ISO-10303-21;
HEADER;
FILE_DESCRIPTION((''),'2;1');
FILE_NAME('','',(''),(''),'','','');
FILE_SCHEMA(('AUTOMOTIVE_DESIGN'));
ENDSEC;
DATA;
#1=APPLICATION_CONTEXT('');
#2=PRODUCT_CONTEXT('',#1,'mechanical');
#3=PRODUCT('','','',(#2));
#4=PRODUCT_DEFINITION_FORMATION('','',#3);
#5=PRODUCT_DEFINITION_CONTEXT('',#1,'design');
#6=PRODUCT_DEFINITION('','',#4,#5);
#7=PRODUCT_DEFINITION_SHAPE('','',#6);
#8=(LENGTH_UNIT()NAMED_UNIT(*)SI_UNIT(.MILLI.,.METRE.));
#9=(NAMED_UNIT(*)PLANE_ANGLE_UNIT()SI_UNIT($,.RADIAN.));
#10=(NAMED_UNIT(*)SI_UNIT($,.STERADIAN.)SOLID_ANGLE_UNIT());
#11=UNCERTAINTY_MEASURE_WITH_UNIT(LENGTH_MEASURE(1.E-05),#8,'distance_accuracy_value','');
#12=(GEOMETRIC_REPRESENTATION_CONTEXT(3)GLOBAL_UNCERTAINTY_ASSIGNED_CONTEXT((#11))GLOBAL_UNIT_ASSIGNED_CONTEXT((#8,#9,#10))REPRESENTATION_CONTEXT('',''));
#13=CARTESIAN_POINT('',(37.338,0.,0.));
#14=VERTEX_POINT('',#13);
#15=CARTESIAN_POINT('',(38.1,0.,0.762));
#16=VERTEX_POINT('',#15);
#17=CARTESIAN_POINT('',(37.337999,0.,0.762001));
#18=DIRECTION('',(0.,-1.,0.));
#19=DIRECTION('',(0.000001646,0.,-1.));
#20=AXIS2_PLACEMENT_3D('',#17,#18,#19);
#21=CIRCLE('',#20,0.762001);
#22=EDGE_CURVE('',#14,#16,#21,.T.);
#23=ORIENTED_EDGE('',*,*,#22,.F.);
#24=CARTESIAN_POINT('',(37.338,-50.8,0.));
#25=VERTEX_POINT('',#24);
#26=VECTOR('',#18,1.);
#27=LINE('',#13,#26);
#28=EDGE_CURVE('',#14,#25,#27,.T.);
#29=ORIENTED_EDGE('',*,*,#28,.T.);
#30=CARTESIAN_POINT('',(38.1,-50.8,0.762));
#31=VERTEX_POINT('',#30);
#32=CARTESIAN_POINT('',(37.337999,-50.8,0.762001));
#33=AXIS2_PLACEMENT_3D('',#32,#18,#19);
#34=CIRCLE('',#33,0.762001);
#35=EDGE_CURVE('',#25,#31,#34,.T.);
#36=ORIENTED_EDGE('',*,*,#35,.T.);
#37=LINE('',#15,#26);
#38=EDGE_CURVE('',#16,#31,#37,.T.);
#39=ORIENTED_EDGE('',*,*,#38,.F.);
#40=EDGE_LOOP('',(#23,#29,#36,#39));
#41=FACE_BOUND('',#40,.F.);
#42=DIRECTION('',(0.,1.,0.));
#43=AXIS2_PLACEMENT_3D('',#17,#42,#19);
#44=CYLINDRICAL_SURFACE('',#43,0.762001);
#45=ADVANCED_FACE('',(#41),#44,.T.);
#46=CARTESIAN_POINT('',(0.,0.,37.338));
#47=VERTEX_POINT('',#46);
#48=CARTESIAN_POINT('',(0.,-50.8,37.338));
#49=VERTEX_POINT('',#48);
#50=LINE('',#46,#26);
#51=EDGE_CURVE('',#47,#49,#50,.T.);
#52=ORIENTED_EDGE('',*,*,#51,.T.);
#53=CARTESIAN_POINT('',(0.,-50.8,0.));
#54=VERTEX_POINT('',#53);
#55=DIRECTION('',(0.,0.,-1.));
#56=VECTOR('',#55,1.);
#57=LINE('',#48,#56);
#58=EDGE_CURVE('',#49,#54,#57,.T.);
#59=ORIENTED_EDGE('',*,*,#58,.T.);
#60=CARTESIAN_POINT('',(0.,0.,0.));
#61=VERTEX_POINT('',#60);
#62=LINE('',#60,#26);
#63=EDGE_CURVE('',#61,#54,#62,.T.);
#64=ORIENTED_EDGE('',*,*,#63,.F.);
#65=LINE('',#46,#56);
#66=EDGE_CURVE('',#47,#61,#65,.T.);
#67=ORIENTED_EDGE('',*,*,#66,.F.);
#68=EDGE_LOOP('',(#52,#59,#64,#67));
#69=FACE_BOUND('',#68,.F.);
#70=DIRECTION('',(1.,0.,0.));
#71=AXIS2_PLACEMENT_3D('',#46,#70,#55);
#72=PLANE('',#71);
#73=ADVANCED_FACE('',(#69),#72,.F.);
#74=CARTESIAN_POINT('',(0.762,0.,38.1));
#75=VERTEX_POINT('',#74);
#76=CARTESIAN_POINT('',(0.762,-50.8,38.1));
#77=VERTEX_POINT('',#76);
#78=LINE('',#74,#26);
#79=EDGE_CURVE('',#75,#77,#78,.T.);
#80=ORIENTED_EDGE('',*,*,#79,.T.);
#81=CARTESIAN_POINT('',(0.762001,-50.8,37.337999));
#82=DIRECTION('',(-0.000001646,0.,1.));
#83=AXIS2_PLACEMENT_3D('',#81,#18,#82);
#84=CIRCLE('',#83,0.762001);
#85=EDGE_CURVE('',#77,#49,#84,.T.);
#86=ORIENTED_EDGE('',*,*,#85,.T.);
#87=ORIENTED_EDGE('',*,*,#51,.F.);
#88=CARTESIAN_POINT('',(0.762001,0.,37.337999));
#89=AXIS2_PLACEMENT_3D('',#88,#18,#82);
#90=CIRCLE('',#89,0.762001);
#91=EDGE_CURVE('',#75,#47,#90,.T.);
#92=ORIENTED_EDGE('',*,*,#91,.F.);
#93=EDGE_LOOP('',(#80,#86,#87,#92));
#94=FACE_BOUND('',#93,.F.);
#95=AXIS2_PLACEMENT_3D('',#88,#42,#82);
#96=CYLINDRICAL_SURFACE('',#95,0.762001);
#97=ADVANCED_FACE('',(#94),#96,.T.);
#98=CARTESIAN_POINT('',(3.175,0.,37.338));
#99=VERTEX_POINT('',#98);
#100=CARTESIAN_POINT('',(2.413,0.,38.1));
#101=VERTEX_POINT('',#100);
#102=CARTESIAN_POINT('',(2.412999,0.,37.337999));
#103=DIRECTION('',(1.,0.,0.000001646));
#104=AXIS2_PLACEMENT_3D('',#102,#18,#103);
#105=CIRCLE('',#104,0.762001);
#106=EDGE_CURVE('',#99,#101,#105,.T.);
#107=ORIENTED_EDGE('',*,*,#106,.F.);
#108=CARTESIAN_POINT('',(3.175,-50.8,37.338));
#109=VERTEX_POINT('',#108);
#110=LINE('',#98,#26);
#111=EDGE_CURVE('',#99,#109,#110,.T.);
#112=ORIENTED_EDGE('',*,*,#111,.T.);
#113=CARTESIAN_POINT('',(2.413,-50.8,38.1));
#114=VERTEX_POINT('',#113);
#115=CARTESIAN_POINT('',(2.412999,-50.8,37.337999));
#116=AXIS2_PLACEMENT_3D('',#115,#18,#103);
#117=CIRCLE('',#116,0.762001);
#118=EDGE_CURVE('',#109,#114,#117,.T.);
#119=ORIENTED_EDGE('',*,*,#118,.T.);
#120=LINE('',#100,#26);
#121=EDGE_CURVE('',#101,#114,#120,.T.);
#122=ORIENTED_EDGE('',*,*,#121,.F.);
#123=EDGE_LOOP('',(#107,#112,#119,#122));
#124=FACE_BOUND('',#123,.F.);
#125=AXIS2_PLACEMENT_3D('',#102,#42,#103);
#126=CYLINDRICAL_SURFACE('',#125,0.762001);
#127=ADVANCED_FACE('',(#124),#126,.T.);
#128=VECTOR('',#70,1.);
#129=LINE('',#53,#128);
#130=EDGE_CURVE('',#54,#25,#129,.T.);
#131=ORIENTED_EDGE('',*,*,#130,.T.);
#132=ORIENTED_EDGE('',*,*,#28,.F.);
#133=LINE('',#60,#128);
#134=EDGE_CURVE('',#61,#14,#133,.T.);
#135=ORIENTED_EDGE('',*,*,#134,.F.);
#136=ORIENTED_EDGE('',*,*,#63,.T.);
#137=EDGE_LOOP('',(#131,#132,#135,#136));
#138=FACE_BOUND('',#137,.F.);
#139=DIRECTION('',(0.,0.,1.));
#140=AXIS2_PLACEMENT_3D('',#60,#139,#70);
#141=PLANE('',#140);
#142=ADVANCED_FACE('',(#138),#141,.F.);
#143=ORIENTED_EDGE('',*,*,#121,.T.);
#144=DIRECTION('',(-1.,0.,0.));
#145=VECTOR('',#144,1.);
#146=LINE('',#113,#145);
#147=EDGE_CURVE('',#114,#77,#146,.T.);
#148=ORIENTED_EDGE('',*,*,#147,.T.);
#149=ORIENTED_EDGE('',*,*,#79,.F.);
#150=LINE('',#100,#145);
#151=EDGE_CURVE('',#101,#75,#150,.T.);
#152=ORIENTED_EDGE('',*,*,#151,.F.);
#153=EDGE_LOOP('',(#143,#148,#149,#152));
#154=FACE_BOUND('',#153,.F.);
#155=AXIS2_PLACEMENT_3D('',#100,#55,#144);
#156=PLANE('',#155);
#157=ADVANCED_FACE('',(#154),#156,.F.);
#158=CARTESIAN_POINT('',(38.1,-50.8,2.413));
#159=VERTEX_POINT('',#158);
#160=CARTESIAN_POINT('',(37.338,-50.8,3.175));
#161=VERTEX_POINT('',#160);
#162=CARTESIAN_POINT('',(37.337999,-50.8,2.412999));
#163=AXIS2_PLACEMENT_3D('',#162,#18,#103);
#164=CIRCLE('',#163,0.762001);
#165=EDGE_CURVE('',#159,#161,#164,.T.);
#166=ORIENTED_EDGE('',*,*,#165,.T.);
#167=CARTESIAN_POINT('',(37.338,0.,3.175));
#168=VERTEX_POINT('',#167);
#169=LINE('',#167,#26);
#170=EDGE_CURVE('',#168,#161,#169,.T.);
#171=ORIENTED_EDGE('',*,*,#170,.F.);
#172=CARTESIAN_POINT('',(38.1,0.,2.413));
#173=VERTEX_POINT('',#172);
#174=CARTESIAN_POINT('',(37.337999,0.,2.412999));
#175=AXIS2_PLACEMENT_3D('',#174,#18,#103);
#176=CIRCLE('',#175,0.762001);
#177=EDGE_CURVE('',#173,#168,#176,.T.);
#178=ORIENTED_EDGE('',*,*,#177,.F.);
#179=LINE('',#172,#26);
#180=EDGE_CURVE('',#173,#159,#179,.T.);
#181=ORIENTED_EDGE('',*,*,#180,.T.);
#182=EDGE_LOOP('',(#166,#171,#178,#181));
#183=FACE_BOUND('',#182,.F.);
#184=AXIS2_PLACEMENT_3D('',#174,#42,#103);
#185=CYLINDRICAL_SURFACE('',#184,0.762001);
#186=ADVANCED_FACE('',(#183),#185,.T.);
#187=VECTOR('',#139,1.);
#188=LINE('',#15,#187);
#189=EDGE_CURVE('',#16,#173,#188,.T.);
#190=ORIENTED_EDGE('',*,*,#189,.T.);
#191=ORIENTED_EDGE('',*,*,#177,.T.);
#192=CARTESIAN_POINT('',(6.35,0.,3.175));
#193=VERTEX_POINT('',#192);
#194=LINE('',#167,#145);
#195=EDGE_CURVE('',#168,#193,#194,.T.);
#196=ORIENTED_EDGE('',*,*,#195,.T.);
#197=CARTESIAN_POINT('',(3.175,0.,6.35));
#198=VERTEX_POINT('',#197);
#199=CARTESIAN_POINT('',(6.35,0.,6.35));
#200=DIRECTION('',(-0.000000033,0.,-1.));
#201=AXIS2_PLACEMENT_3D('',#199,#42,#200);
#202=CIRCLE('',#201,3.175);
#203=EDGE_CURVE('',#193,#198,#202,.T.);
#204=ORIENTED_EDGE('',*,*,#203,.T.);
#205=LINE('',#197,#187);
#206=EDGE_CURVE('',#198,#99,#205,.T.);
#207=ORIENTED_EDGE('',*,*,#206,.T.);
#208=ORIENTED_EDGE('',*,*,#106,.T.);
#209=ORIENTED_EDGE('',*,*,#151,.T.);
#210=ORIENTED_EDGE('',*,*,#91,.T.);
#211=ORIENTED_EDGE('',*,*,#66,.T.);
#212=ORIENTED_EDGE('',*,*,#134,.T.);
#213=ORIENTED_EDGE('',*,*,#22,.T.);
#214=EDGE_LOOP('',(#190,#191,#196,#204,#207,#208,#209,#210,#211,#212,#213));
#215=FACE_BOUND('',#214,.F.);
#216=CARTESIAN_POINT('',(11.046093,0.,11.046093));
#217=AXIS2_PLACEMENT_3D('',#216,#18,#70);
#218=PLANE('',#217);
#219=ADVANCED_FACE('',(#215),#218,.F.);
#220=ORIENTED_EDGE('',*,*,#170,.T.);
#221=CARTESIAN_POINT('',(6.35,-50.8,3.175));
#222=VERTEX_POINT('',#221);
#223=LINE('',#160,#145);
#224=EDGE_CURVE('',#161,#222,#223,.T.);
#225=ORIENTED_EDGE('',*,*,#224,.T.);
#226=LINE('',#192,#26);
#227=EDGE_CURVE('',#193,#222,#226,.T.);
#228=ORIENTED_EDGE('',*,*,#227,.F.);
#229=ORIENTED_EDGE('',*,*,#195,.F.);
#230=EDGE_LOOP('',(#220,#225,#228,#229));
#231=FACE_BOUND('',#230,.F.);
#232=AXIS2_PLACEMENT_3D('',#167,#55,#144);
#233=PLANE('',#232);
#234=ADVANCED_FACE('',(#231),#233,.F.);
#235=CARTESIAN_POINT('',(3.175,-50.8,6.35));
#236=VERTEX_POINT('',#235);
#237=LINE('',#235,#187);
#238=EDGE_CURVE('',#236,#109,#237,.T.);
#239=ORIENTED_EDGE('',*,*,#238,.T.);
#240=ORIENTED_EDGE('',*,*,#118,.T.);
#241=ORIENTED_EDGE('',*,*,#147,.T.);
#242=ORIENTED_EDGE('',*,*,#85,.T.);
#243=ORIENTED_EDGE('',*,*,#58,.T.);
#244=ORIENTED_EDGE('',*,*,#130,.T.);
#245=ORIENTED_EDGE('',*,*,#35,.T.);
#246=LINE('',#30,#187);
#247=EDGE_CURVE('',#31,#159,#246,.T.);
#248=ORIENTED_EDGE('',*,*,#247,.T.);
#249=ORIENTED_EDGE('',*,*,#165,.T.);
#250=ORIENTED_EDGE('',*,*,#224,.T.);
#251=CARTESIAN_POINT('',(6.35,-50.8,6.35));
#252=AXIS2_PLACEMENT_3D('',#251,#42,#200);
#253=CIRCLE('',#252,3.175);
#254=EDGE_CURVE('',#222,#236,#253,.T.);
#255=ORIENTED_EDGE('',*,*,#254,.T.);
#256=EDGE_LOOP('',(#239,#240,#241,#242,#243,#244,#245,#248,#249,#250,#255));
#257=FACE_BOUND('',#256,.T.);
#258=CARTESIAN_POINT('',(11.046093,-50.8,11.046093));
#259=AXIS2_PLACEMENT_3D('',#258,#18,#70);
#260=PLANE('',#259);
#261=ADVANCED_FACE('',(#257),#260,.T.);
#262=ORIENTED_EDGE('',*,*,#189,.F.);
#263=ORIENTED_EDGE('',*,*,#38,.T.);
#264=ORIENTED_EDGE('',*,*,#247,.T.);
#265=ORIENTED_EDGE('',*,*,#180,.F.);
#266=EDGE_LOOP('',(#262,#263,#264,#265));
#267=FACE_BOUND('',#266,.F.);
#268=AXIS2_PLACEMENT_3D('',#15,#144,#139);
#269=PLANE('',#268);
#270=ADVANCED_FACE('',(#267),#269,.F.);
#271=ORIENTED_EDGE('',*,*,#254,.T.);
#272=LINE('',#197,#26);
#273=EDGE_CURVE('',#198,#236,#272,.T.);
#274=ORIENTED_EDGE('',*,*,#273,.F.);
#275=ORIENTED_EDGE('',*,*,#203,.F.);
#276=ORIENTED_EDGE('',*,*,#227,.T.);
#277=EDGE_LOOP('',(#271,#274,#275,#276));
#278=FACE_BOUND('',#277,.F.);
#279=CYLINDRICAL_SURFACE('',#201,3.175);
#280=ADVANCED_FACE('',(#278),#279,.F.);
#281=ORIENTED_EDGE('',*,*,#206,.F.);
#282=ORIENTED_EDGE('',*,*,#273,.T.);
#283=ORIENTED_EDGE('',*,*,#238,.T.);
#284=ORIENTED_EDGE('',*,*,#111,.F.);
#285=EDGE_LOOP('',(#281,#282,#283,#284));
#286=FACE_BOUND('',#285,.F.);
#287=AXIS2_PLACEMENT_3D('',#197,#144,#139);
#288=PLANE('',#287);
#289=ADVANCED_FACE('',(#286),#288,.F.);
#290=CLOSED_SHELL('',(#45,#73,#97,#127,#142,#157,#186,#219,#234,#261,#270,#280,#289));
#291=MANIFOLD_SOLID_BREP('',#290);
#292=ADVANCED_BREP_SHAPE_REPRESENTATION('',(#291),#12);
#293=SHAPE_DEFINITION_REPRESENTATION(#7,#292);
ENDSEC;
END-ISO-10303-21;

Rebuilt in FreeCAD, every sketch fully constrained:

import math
import FreeCAD as App
import Part
import Sketcher
from FreeCAD import Vector
Q = App.Units.Quantity

doc = App.newDocument("Part")
body = doc.addObject("PartDesign::Body", "Body")

# Sketch on XZ plane
sketch1 = doc.addObject("Sketcher::SketchObject", "Sketch")
body.addObject(sketch1)
sketch1.AttachmentSupport = (doc.XZ_Plane, [""])
sketch1.MapMode = "FlatFace"
sketch1.addGeometry([
    Part.LineSegment(Vector(0, 37.3, 0), Vector(0, 0, 0)),  # 0
    Part.LineSegment(Vector(0, 0, 0), Vector(37.3, 0, 0)),  # 1
    Part.ArcOfCircle(Part.Circle(Vector(37.3, 0.8, 0), Vector(0, 0, 1), 0.8), math.radians(-90), math.radians(0)),  # 2
    Part.LineSegment(Vector(38.1, 0.8, 0), Vector(38.1, 2.4, 0)),  # 3
    Part.ArcOfCircle(Part.Circle(Vector(37.3, 2.4, 0), Vector(0, 0, 1), 0.8), math.radians(0), math.radians(90)),  # 4
    Part.LineSegment(Vector(37.3, 3.2, 0), Vector(6.3, 3.2, 0)),  # 5
    Part.ArcOfCircle(Part.Circle(Vector(6.4, 6.4, 0), Vector(0, 0, 1), 3.2), math.radians(-180), math.radians(-90)),  # 6
    Part.LineSegment(Vector(3.2, 6.3, 0), Vector(3.2, 37.3, 0)),  # 7
    Part.ArcOfCircle(Part.Circle(Vector(2.4, 37.3, 0), Vector(0, 0, 1), 0.8), math.radians(0), math.radians(90)),  # 8
    Part.LineSegment(Vector(2.4, 38.1, 0), Vector(0.8, 38.1, 0)),  # 9
    Part.ArcOfCircle(Part.Circle(Vector(0.8, 37.3, 0), Vector(0, 0, 1), 0.8), math.radians(90), math.radians(180)),  # 10
], False)
sketch1.addConstraint([
    Sketcher.Constraint("Coincident", 0, 2, 1, 1),
    Sketcher.Constraint("Tangent", 1, 2, 2, 1),
    Sketcher.Constraint("Tangent", 2, 2, 3, 1),
    Sketcher.Constraint("Tangent", 3, 2, 4, 1),
    Sketcher.Constraint("Tangent", 4, 2, 5, 1),
    Sketcher.Constraint("Tangent", 5, 2, 6, 2),
    Sketcher.Constraint("Tangent", 6, 1, 7, 1),
    Sketcher.Constraint("Tangent", 7, 2, 8, 1),
    Sketcher.Constraint("Tangent", 8, 2, 9, 1),
    Sketcher.Constraint("Tangent", 9, 2, 10, 1),
    Sketcher.Constraint("Tangent", 10, 2, 0, 1),
    Sketcher.Constraint("Vertical", 0),
    Sketcher.Constraint("Horizontal", 1),
    Sketcher.Constraint("Vertical", 3),
    Sketcher.Constraint("Horizontal", 5),
    Sketcher.Constraint("Vertical", 7),
    Sketcher.Constraint("Horizontal", 9),
    Sketcher.Constraint("Coincident", 0, 2, -1, 1),
    Sketcher.Constraint("Equal", 2, 4),
    Sketcher.Constraint("Equal", 4, 8),
    Sketcher.Constraint("Equal", 8, 10),
    Sketcher.Constraint("Equal", 1, 0),
    Sketcher.Constraint("Equal", 9, 3),
    Sketcher.Constraint("Radius", 2, Q("0.03 in")),
    Sketcher.Constraint("Radius", 6, Q("0.125 in")),
    Sketcher.Constraint("DistanceX", 1, 1, 1, 2, Q("1.47 in")),
    Sketcher.Constraint("DistanceX", 5, 2, 5, 1, Q("1.22 in")),
])
pad1 = doc.addObject("PartDesign::Pad", "Pad")
body.addObject(pad1)
pad1.Profile = sketch1
pad1.Length = Q("2 in")

doc.recompute()
